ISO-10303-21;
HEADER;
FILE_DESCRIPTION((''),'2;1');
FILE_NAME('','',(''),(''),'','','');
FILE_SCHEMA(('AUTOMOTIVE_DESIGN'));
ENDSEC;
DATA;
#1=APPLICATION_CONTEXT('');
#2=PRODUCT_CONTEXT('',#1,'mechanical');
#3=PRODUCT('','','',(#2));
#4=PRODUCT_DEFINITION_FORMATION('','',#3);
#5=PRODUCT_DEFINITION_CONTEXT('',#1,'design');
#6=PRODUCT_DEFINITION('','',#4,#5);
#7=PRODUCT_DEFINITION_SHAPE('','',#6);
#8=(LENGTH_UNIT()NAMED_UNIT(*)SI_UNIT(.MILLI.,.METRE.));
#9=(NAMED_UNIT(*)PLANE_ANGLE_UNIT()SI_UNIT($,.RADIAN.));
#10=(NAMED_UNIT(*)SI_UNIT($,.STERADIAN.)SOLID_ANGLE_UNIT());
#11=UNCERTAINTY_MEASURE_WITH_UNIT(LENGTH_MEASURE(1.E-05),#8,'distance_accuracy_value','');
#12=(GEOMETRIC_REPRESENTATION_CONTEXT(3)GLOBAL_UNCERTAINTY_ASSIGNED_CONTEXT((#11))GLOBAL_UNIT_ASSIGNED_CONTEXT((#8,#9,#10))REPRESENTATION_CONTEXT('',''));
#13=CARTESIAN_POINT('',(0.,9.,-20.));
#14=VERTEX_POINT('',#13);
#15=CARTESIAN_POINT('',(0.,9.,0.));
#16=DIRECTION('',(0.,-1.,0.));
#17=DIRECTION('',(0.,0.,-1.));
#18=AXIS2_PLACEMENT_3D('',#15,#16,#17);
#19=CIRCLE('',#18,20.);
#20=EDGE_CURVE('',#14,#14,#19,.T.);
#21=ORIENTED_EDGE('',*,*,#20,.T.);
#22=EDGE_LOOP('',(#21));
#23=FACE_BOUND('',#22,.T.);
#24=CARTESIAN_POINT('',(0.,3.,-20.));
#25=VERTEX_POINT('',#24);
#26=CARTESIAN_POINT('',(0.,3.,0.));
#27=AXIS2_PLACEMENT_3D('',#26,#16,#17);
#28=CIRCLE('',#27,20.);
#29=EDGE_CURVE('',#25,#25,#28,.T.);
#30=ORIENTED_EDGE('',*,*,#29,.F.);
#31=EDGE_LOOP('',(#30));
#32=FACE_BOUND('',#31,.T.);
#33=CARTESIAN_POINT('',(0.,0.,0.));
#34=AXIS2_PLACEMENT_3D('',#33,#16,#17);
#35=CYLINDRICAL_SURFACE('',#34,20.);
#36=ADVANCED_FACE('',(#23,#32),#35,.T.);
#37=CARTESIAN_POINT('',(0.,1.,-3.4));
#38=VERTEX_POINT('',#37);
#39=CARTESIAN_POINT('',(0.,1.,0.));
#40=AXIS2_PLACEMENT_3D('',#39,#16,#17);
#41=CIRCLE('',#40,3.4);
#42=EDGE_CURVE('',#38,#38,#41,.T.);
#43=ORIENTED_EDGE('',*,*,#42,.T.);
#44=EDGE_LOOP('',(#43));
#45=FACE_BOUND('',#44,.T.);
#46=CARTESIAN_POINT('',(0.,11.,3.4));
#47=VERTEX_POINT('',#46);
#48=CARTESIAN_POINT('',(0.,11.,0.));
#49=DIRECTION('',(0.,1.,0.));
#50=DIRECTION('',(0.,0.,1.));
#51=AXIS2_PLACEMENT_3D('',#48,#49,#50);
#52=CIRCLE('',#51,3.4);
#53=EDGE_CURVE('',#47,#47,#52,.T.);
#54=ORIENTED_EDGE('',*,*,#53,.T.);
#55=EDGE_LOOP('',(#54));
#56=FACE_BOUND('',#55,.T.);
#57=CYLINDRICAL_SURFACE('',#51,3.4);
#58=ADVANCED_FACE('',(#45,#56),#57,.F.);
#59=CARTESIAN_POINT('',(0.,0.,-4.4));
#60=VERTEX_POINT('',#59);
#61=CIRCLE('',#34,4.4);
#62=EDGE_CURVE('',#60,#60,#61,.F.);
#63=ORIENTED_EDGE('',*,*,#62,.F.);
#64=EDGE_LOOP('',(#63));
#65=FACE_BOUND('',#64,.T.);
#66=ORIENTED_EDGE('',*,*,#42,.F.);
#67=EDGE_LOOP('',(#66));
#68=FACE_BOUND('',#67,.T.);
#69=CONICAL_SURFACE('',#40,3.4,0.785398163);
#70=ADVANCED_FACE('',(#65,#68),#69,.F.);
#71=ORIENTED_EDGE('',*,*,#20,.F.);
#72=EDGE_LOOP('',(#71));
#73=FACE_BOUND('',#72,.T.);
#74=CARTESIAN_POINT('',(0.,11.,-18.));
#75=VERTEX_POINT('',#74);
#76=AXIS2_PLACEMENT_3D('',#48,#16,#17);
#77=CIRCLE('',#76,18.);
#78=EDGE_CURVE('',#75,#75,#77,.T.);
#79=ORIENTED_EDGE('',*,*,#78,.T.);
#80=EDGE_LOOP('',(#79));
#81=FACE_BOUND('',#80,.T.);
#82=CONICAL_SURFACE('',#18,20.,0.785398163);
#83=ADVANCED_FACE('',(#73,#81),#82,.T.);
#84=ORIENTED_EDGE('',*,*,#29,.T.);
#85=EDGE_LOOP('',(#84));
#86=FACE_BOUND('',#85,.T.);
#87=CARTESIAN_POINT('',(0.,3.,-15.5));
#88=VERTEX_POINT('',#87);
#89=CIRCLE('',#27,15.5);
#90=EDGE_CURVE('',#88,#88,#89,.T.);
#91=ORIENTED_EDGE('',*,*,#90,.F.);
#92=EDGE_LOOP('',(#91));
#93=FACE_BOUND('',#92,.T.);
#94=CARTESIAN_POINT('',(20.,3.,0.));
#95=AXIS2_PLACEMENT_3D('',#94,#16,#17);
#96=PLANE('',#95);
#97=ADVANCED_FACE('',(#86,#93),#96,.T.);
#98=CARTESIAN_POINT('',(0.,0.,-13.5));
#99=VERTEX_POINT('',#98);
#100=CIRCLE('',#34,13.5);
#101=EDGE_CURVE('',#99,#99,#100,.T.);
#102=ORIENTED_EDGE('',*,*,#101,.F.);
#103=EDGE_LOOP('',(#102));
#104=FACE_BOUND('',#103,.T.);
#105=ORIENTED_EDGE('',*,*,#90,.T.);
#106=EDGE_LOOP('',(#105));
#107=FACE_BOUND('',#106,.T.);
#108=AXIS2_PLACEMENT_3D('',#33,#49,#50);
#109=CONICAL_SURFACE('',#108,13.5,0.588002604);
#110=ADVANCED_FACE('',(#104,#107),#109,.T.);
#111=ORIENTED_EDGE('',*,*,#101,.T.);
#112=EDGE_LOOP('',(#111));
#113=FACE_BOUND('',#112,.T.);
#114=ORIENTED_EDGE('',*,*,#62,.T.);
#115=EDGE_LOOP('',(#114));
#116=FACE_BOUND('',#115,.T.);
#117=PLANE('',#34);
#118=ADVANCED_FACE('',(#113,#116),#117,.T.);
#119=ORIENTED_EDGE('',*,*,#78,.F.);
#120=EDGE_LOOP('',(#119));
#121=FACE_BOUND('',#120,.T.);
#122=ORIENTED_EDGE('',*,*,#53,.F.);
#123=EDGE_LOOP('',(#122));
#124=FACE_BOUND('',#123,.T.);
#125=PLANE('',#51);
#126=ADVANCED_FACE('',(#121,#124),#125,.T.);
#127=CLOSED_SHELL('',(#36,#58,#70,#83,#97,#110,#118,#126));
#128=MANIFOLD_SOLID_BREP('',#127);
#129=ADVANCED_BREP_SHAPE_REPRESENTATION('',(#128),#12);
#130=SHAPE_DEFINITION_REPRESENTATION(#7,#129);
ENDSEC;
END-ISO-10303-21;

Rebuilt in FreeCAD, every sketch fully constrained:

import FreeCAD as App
import Part
import Sketcher
Q = App.Units.Quantity


def edges_at(feature, points):
    """Names of the edges that pass closest to the given points."""
    edges = feature.Shape.Edges
    near = lambda p: min(range(len(edges)), key=lambda i: edges[i].distToShape(Part.Vertex(*p))[0])
    return sorted({f"Edge{near(p) + 1}" for p in points})

doc = App.newDocument("Part")
body = doc.addObject("PartDesign::Body", "Body")

sketch1 = body.newObject("Sketcher::SketchObject", "Sketch")
sketch1.AttachmentSupport = (doc.getObject("XY_Plane"), [""])
sketch1.MapMode = "FlatFace"
sketch1.addGeometry([
    Part.LineSegment(App.Vector(0, 11, 0), App.Vector(0, 0, 0)),
    Part.LineSegment(App.Vector(0, 0, 0), App.Vector(13.5, 0, 0)),
    Part.LineSegment(App.Vector(13.5, 0, 0), App.Vector(15.5, 3, 0)),
    Part.LineSegment(App.Vector(15.5, 3, 0), App.Vector(20, 3, 0)),
    Part.LineSegment(App.Vector(20, 3, 0), App.Vector(20, 9, 0)),
    Part.LineSegment(App.Vector(20, 9, 0), App.Vector(18, 11, 0)),
    Part.LineSegment(App.Vector(18, 11, 0), App.Vector(0, 11, 0)),
], False)
sketch1.addConstraint([
    Sketcher.Constraint("Coincident", 0, 2, 1, 1),
    Sketcher.Constraint("Coincident", 1, 2, 2, 1),
    Sketcher.Constraint("Coincident", 2, 2, 3, 1),
    Sketcher.Constraint("Coincident", 3, 2, 4, 1),
    Sketcher.Constraint("Coincident", 4, 2, 5, 1),
    Sketcher.Constraint("Coincident", 5, 2, 6, 1),
    Sketcher.Constraint("Coincident", 6, 2, 0, 1),
    Sketcher.Constraint("Vertical", 0),
    Sketcher.Constraint("Horizontal", 1),
    Sketcher.Constraint("Horizontal", 3),
    Sketcher.Constraint("Vertical", 4),
    Sketcher.Constraint("Horizontal", 6),
    Sketcher.Constraint("Coincident", 0, 2, -1, 1),
    Sketcher.Constraint("DistanceX", 6, 2, 6, 1, Q("18 mm")),
    Sketcher.Constraint("DistanceY", 0, 2, 0, 1, Q("11 mm")),
    Sketcher.Constraint("DistanceY", 4, 1, 4, 2, Q("6 mm")),
    Sketcher.Constraint("Angle", 5, Q("135 deg")),
    Sketcher.Constraint("DistanceX", 1, 1, 1, 2, Q("13.5 mm")),
    Sketcher.Constraint("DistanceX", 3, 1, 3, 2, Q("4.5 mm")),
    Sketcher.Constraint("DistanceY", -1, 1, 2, 2, Q("3 mm")),
])
revolution = body.newObject("PartDesign::Revolution", "Revolution")
revolution.Profile = sketch1
revolution.ReferenceAxis = (sketch1, ["V_Axis"])
revolution.Angle = 360

sketch2 = body.newObject("Sketcher::SketchObject", "Sketch001")
sketch2.AttachmentSupport = (doc.getObject("XZ_Plane"), [""])
sketch2.MapMode = "FlatFace"
sketch2.AttachmentOffset = App.Placement(App.Vector(0, 0, -11), App.Rotation())
sketch2.addGeometry(Part.Circle(App.Vector(0, 0, 0), App.Vector(0, 0, 1), 3.4), False)
sketch2.addConstraint([
    Sketcher.Constraint("Coincident", 0, 3, -1, 1),
    Sketcher.Constraint("Diameter", 0, Q("6.8 mm")),
])
doc.recompute()
hole = body.newObject("PartDesign::Hole", "Hole")
hole.Profile = sketch2
hole.ThreadType = "None"
hole.Diameter = 6.8
hole.DepthType = "Dimension"
hole.Depth = 21.25
hole.DrillPoint = "Flat"
hole.Reversed = True
doc.recompute()

chamfer = body.newObject("PartDesign::Chamfer", "Chamfer")
chamfer.Base = (hole, edges_at(hole, [(3.4, 0, 0)]))
chamfer.Size = 1

doc.recompute()
